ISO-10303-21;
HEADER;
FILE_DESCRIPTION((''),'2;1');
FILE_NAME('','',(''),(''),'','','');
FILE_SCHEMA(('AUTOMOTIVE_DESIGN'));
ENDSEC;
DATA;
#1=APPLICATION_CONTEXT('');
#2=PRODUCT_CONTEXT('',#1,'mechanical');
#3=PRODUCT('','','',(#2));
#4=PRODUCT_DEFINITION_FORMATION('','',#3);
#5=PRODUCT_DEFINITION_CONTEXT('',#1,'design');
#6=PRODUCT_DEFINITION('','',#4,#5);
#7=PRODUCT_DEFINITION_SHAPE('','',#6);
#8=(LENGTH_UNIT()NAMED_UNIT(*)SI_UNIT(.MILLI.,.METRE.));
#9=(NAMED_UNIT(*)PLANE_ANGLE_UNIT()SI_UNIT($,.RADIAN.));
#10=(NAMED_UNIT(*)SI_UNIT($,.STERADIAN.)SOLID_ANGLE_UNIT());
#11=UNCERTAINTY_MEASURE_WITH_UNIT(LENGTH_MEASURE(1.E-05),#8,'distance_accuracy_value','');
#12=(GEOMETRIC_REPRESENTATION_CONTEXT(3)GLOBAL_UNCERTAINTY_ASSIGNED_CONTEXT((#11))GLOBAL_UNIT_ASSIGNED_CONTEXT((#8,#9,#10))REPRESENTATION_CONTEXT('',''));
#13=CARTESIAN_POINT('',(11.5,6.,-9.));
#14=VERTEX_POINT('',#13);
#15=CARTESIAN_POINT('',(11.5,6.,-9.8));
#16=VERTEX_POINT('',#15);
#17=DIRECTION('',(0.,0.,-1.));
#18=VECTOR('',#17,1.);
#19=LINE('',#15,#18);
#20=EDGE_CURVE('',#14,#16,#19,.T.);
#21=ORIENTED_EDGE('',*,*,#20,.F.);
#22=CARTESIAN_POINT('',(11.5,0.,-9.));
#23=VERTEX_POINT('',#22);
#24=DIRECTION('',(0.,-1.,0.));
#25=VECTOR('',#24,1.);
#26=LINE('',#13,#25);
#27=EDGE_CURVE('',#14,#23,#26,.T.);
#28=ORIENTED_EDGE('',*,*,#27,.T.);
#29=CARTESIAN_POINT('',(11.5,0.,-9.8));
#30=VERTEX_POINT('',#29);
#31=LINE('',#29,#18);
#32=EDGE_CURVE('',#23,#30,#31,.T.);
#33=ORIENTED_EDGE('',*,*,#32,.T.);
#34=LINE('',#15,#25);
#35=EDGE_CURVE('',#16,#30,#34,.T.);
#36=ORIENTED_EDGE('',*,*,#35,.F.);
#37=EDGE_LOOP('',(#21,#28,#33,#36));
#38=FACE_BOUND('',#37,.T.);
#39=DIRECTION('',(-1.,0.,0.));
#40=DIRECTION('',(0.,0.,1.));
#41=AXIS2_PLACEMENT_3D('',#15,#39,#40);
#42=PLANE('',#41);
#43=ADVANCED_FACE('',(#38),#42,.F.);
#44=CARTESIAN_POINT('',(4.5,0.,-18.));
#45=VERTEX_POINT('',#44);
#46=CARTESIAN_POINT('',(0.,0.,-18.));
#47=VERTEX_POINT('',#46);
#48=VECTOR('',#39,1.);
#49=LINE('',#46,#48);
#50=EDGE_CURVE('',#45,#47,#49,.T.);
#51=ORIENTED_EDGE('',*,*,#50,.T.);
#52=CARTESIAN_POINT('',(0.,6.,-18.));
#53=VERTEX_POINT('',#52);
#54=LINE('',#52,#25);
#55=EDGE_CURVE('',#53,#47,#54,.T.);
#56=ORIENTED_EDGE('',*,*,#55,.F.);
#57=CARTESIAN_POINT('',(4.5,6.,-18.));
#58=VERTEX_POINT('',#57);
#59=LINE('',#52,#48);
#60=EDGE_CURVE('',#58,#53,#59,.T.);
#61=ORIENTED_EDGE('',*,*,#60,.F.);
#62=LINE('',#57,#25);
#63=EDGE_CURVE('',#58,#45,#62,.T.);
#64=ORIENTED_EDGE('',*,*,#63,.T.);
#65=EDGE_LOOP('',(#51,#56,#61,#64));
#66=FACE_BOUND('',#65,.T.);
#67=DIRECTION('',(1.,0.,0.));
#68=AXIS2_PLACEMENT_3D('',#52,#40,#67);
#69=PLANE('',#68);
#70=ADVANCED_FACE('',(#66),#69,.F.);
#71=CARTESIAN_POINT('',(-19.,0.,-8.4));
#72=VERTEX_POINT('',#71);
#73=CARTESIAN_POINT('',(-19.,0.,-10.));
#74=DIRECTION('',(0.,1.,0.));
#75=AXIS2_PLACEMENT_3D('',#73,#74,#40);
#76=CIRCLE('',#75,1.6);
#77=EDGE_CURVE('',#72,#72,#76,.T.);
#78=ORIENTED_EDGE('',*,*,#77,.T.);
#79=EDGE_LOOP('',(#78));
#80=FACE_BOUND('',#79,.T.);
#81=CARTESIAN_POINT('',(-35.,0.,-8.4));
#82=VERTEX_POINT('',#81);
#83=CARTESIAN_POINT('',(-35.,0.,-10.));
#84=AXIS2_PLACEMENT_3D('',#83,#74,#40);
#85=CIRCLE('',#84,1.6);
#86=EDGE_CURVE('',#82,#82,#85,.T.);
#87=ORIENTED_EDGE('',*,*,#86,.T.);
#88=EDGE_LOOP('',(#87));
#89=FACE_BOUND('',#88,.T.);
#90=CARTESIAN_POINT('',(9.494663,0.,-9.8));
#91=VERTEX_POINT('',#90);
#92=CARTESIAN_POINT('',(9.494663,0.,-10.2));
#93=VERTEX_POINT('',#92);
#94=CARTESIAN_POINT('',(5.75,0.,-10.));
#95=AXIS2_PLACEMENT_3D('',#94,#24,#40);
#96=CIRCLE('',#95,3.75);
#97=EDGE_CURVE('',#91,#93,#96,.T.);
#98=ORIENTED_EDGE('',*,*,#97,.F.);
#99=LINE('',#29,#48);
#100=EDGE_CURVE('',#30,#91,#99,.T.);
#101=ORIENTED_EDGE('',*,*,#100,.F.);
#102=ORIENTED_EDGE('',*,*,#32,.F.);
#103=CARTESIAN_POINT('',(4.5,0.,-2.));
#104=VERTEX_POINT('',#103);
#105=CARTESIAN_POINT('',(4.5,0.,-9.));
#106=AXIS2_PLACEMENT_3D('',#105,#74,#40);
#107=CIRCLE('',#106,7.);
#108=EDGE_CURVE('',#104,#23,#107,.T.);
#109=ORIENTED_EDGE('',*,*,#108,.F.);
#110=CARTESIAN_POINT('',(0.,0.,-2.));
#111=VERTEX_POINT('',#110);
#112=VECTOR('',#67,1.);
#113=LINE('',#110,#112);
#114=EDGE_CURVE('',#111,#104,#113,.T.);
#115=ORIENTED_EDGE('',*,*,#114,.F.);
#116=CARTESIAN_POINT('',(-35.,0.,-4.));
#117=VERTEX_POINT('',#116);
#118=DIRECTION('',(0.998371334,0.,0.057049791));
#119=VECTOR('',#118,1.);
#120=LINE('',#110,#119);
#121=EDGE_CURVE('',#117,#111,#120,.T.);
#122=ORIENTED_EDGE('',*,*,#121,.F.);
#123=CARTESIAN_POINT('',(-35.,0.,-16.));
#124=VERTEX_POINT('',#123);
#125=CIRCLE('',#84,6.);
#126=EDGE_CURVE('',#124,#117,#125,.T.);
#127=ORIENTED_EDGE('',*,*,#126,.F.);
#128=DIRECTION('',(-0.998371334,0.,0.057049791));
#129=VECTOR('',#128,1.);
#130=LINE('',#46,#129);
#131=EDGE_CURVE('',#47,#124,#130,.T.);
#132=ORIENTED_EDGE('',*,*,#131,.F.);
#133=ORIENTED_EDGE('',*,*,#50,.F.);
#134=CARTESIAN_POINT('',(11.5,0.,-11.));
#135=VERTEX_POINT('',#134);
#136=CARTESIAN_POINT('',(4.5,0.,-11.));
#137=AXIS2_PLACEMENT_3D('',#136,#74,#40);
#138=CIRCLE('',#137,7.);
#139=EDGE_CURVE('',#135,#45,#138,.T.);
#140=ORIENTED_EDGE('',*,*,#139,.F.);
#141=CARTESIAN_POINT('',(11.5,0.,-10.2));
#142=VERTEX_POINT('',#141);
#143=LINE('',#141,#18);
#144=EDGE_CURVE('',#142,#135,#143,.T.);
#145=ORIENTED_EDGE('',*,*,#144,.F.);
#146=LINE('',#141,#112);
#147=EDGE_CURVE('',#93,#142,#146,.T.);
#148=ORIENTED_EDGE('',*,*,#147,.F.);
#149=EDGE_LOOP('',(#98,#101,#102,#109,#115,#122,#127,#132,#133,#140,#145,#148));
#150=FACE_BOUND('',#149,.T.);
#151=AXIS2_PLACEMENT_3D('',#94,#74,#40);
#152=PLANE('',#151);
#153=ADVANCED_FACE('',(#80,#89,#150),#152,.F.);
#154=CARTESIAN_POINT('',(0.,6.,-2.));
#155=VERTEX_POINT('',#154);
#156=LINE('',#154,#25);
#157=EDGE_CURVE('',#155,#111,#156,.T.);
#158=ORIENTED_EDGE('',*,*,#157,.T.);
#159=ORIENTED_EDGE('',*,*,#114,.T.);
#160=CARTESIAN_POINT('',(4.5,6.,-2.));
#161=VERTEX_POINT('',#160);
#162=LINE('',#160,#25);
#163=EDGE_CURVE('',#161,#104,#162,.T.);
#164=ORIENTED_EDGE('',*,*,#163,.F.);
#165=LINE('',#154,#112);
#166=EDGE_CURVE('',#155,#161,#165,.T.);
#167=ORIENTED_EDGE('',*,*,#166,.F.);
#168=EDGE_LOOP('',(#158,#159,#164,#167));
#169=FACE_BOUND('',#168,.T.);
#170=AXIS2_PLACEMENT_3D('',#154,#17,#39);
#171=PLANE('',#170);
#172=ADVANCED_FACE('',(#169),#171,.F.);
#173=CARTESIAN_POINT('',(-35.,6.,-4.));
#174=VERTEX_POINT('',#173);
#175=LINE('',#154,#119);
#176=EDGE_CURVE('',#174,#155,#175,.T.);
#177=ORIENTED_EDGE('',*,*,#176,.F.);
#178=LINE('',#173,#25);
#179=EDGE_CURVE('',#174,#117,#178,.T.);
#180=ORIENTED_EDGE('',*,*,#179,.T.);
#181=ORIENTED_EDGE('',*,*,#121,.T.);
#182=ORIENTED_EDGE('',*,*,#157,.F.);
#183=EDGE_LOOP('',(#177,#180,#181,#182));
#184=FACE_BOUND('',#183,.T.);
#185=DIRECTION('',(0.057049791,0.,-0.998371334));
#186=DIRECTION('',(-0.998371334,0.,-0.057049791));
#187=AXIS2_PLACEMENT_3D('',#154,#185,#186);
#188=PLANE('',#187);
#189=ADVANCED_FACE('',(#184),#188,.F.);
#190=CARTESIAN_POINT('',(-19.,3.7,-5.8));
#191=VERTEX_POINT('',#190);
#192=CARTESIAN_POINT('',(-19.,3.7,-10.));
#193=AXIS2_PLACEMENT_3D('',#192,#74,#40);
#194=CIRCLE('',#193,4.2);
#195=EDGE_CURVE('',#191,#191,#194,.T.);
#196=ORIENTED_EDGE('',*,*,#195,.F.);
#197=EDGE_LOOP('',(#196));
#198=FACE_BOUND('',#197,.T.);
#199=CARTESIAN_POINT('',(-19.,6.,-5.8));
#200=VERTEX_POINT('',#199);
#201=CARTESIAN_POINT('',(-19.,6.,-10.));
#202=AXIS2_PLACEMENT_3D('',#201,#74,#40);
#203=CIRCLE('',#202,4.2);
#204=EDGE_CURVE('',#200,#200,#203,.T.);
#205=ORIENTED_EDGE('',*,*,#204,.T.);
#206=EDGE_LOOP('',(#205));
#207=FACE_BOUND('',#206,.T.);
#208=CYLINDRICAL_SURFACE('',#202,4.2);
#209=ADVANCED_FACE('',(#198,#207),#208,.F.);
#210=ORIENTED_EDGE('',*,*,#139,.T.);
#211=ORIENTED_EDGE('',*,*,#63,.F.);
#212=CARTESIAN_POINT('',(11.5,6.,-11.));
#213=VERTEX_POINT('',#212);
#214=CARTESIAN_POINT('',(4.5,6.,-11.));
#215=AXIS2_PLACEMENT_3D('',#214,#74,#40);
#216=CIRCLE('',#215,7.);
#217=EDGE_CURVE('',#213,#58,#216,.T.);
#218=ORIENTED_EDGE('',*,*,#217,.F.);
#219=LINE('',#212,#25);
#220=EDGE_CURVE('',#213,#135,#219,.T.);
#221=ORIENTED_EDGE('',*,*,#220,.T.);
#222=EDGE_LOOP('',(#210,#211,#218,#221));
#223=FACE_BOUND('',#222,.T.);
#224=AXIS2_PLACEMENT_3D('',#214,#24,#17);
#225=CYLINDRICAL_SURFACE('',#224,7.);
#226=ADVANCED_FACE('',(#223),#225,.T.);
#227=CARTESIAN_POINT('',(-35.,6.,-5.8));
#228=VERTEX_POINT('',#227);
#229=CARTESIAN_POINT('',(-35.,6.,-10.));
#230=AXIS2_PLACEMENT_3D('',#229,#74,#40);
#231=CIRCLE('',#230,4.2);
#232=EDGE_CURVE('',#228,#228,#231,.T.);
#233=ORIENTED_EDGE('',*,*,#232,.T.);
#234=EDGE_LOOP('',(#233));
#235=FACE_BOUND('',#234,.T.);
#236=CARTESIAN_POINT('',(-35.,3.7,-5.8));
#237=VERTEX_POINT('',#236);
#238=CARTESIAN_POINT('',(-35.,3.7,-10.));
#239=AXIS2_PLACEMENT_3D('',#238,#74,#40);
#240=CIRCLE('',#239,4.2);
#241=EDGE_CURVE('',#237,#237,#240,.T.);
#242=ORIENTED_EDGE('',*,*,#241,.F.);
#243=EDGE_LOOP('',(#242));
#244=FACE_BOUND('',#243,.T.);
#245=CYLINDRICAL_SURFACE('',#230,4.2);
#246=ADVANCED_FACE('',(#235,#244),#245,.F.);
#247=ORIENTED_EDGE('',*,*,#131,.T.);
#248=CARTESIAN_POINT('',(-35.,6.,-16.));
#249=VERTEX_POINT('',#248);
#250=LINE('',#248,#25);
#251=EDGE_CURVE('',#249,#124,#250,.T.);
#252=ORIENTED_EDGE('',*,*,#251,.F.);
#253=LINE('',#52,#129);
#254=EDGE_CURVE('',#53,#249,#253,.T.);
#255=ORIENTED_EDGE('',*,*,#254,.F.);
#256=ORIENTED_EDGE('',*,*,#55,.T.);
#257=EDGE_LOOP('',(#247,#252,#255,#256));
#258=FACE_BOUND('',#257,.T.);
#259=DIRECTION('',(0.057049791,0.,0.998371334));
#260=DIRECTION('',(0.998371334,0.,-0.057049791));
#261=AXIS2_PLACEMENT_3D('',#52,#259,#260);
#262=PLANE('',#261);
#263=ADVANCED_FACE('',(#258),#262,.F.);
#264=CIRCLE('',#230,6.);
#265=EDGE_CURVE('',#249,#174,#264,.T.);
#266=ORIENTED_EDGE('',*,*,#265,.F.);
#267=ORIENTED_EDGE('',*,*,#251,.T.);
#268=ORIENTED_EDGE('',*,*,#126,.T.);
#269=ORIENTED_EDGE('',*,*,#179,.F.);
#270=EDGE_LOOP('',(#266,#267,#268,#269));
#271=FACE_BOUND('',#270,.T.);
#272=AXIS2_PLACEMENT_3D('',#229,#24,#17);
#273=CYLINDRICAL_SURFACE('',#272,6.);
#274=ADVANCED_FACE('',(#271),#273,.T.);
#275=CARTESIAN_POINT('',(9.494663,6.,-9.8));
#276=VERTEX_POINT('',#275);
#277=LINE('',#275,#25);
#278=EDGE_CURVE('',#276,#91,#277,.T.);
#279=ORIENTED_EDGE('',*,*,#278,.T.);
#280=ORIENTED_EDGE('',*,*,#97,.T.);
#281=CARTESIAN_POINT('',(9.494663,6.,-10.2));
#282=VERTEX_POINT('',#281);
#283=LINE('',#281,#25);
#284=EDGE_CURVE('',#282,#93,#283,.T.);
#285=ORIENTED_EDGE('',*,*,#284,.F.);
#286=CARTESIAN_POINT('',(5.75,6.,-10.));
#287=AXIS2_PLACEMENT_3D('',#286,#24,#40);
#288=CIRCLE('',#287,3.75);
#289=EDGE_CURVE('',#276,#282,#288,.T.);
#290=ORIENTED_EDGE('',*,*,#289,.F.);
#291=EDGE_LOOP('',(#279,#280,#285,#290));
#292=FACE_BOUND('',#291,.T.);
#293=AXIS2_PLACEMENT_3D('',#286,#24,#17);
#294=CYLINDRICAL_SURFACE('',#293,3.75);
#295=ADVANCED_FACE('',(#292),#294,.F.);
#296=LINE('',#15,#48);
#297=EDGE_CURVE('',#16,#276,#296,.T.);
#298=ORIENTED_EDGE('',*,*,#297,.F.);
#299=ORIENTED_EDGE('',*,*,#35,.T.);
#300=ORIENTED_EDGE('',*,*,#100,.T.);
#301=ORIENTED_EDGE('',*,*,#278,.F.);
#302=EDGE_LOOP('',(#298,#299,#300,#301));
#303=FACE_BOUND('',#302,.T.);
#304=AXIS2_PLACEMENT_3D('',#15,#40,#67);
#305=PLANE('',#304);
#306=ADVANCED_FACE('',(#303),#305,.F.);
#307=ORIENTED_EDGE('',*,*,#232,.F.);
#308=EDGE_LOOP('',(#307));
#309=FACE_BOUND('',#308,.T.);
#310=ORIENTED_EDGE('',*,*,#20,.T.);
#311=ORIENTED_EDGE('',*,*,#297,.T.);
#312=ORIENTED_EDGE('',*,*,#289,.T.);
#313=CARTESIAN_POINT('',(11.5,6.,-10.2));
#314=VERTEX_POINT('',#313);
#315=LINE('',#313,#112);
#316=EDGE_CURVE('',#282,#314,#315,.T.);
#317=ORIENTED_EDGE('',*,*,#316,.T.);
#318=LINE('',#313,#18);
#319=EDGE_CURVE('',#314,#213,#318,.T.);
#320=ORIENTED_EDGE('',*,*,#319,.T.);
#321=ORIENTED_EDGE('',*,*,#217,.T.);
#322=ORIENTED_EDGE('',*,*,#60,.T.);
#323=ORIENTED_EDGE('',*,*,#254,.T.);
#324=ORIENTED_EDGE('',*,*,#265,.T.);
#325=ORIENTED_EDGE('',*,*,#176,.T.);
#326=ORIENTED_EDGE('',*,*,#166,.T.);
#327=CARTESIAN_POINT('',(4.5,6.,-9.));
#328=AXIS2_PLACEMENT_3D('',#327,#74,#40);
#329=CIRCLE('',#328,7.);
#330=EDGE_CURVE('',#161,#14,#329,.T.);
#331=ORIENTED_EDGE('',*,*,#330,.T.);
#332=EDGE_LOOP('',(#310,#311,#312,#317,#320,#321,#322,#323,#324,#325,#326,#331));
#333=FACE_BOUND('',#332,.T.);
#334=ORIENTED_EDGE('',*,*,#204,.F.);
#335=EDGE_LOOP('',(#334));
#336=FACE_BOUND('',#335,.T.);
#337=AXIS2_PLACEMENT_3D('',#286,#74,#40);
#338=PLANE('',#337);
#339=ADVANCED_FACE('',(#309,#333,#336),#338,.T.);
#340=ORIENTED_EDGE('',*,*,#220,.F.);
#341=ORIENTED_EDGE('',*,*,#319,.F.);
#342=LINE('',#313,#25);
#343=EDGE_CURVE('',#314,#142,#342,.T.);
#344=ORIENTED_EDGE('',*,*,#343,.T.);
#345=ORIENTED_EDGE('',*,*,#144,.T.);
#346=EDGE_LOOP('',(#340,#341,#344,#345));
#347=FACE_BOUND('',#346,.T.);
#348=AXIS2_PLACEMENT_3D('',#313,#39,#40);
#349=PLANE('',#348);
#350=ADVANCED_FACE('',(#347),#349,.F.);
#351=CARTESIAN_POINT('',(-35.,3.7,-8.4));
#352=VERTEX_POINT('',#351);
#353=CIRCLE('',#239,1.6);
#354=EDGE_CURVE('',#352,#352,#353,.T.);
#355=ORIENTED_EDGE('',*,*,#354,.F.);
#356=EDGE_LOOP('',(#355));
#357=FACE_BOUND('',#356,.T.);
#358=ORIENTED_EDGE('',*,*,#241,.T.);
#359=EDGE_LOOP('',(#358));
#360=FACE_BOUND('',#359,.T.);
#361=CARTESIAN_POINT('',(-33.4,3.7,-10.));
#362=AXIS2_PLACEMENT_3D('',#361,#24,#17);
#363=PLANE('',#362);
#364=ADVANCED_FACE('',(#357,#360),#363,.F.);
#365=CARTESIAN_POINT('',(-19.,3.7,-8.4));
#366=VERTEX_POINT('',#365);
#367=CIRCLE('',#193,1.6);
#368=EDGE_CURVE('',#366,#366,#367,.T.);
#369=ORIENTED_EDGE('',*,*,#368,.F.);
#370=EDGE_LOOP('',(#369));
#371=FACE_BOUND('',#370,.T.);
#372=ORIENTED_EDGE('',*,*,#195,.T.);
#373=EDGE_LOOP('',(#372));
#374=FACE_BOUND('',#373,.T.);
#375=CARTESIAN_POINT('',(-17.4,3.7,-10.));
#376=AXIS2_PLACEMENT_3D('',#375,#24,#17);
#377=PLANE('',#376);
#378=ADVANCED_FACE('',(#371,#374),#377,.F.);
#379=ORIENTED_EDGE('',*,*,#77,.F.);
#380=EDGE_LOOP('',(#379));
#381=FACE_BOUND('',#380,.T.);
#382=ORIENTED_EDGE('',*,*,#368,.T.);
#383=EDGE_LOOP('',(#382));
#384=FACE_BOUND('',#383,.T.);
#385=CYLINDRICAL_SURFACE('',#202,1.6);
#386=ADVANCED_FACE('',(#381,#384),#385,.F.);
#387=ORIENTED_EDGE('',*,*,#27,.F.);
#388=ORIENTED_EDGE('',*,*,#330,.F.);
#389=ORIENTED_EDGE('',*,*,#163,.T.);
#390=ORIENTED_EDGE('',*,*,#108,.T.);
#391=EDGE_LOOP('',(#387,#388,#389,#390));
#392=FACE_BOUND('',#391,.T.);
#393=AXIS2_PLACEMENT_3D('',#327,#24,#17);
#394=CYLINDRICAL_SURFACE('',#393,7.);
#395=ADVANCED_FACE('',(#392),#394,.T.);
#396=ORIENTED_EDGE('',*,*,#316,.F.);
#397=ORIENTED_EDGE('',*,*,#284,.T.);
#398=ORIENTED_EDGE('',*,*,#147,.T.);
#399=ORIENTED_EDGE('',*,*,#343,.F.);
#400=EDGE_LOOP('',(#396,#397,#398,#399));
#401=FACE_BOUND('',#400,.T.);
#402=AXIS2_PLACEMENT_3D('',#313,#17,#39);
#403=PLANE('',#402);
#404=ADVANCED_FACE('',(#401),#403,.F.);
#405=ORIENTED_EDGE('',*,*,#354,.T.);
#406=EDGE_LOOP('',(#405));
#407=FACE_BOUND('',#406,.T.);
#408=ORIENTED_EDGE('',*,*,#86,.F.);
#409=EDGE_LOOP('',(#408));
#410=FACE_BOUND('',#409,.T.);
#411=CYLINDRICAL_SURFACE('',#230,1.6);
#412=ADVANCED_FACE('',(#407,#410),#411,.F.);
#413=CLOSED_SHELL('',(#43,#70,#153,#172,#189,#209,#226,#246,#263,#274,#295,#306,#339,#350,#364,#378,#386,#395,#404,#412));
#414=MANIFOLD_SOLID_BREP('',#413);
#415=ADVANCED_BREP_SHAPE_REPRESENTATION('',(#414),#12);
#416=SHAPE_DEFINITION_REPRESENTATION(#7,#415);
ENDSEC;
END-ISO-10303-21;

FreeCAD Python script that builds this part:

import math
import FreeCAD as App
import Part
import Sketcher
Q = App.Units.Quantity

doc = App.newDocument("Part")
body = doc.addObject("PartDesign::Body", "Body")

# Sketch on XZ plane
sketch1 = body.newObject("Sketcher::SketchObject", "Sketch")
sketch1.AttachmentSupport = (doc.getObject("XZ_Plane"), [""])
sketch1.MapMode = "FlatFace"
sketch1.addGeometry([
    Part.LineSegment(App.Vector(11.5, -10.2, 0), App.Vector(11.5, -11, 0)),  # 0
    Part.ArcOfCircle(Part.Circle(App.Vector(4.5, -11, 0), App.Vector(0, 0, 1), 7), math.radians(-90), math.radians(0)),  # 1
    Part.LineSegment(App.Vector(4.5, -18, 0), App.Vector(0, -18, 0)),  # 2
    Part.LineSegment(App.Vector(0, -18, 0), App.Vector(-35, -16, 0)),  # 3
    Part.ArcOfCircle(Part.Circle(App.Vector(-35, -10, 0), App.Vector(0, 0, 1), 6), math.radians(90), math.radians(270)),  # 4
    Part.LineSegment(App.Vector(-35, -4, 0), App.Vector(0, -2, 0)),  # 5
    Part.LineSegment(App.Vector(0, -2, 0), App.Vector(4.5, -2, 0)),  # 6
    Part.ArcOfCircle(Part.Circle(App.Vector(4.5, -9, 0), App.Vector(0, 0, 1), 7), math.radians(0), math.radians(90)),  # 7
    Part.LineSegment(App.Vector(11.5, -9, 0), App.Vector(11.5, -9.8, 0)),  # 8
    Part.LineSegment(App.Vector(11.5, -9.8, 0), App.Vector(9.49, -9.8, 0)),  # 9
    Part.ArcOfCircle(Part.Circle(App.Vector(5.75, -10, 0), App.Vector(0, 0, 1), 3.75), math.radians(3), math.radians(357)),  # 10
    Part.LineSegment(App.Vector(9.49, -10.2, 0), App.Vector(11.5, -10.2, 0)),  # 11
    Part.Circle(App.Vector(-35, -10, 0), App.Vector(0, 0, 1), 1.5),  # 12
    Part.Circle(App.Vector(-19, -10, 0), App.Vector(0, 0, 1), 1.5),  # 13
], False)
sketch1.addConstraint([
    Sketcher.Constraint("Tangent", 0, 2, 1, 2),
    Sketcher.Constraint("Tangent", 1, 1, 2, 1),
    Sketcher.Constraint("Coincident", 2, 2, 3, 1),
    Sketcher.Constraint("Coincident", 3, 2, 4, 2),
    Sketcher.Constraint("Coincident", 4, 1, 5, 1),
    Sketcher.Constraint("Coincident", 5, 2, 6, 1),
    Sketcher.Constraint("Tangent", 6, 2, 7, 2),
    Sketcher.Constraint("Tangent", 7, 1, 8, 1),
    Sketcher.Constraint("Coincident", 8, 2, 9, 1),
    Sketcher.Constraint("Coincident", 9, 2, 10, 1),
    Sketcher.Constraint("Coincident", 10, 2, 11, 1),
    Sketcher.Constraint("Coincident", 11, 2, 0, 1),
    Sketcher.Constraint("Vertical", 0),
    Sketcher.Constraint("Horizontal", 2),
    Sketcher.Constraint("Horizontal", 6),
    Sketcher.Constraint("Vertical", 8),
    Sketcher.Constraint("Horizontal", 9),
    Sketcher.Constraint("Horizontal", 11),
    Sketcher.Constraint("Coincident", 12, 3, 4, 3),
    Sketcher.Constraint("Equal", 1, 7),
    Sketcher.Constraint("Equal", 12, 13),
    Sketcher.Constraint("PointOnObject", 2, 2, -2),
    Sketcher.Constraint("PointOnObject", 5, 2, -2),
    Sketcher.Constraint("Horizontal", 4, 3, 10, 3),
    Sketcher.Constraint("Horizontal", 12, 3, 13, 3),
    Sketcher.Constraint("Vertical", 1, 3, 7, 3),
    Sketcher.Constraint("Vertical", 12, 3, 3, 2),
    Sketcher.Constraint("Vertical", 3, 2, 4, 1),
    Sketcher.Constraint("Vertical", 9, 2, 10, 2),
    Sketcher.Constraint("Equal", 0, 8),
    Sketcher.Constraint("Diameter", 12, Q("3 mm")),
    Sketcher.Constraint("Radius", 1, Q("7 mm")),
    Sketcher.Constraint("Radius", 4, Q("6 mm")),
    Sketcher.Constraint("Radius", 10, Q("3.75 mm")),
    Sketcher.Constraint("DistanceX", 2, 2, 2, 1, Q("4.5 mm")),
    Sketcher.Constraint("DistanceY", 0, 2, 0, 1, Q("0.8 mm")),
    Sketcher.Constraint("DistanceY", 1, 3, -1, 1, Q("11 mm")),
    Sketcher.Constraint("DistanceX", 4, 3, -1, 1, Q("35 mm")),
    Sketcher.Constraint("DistanceY", 4, 3, -1, 1, Q("10 mm")),
    Sketcher.Constraint("DistanceX", 13, 3, -1, 1, Q("19 mm")),
    Sketcher.Constraint("DistanceX", -1, 1, 10, 3, Q("5.75 mm")),
])
pad1 = body.newObject("PartDesign::Pad", "Pad")
pad1.Profile = sketch1
pad1.Length = 6
pad1.Reversed = True

# Sketch on XZ plane
sketch2 = body.newObject("Sketcher::SketchObject", "Sketch001")
sketch2.AttachmentSupport = (doc.getObject("XZ_Plane"), [""])
sketch2.MapMode = "FlatFace"
sketch2.AttachmentOffset = App.Placement(App.Vector(0, 0, -6), App.Rotation())
sketch2.addGeometry([
    Part.Circle(App.Vector(-19, -10, 0), App.Vector(0, 0, 1), 1.6),
    Part.Circle(App.Vector(-35, -10, 0), App.Vector(0, 0, 1), 1.6),
], False)
sketch2.addConstraint([
    Sketcher.Constraint("Equal", 0, 1),
    Sketcher.Constraint("Horizontal", 0, 3, 1, 3),
    Sketcher.Constraint("Diameter", 0, Q("3.2 mm")),
    Sketcher.Constraint("DistanceX", 0, 3, -1, 1, Q("19 mm")),
    Sketcher.Constraint("DistanceY", 0, 3, -1, 1, Q("10 mm")),
    Sketcher.Constraint("DistanceX", 1, 3, -1, 1, Q("35 mm")),
])
doc.recompute()
hole = body.newObject("PartDesign::Hole", "Hole")
hole.Profile = sketch2
hole.ThreadType = "None"
hole.Diameter = 3.2
hole.DepthType = "Dimension"
hole.Depth = 6
hole.DrillPoint = "Flat"
hole.HoleCutType = "Counterbore"
hole.HoleCutDiameter = 8.4
hole.HoleCutDepth = 2.3
hole.Reversed = True

doc.recompute()
